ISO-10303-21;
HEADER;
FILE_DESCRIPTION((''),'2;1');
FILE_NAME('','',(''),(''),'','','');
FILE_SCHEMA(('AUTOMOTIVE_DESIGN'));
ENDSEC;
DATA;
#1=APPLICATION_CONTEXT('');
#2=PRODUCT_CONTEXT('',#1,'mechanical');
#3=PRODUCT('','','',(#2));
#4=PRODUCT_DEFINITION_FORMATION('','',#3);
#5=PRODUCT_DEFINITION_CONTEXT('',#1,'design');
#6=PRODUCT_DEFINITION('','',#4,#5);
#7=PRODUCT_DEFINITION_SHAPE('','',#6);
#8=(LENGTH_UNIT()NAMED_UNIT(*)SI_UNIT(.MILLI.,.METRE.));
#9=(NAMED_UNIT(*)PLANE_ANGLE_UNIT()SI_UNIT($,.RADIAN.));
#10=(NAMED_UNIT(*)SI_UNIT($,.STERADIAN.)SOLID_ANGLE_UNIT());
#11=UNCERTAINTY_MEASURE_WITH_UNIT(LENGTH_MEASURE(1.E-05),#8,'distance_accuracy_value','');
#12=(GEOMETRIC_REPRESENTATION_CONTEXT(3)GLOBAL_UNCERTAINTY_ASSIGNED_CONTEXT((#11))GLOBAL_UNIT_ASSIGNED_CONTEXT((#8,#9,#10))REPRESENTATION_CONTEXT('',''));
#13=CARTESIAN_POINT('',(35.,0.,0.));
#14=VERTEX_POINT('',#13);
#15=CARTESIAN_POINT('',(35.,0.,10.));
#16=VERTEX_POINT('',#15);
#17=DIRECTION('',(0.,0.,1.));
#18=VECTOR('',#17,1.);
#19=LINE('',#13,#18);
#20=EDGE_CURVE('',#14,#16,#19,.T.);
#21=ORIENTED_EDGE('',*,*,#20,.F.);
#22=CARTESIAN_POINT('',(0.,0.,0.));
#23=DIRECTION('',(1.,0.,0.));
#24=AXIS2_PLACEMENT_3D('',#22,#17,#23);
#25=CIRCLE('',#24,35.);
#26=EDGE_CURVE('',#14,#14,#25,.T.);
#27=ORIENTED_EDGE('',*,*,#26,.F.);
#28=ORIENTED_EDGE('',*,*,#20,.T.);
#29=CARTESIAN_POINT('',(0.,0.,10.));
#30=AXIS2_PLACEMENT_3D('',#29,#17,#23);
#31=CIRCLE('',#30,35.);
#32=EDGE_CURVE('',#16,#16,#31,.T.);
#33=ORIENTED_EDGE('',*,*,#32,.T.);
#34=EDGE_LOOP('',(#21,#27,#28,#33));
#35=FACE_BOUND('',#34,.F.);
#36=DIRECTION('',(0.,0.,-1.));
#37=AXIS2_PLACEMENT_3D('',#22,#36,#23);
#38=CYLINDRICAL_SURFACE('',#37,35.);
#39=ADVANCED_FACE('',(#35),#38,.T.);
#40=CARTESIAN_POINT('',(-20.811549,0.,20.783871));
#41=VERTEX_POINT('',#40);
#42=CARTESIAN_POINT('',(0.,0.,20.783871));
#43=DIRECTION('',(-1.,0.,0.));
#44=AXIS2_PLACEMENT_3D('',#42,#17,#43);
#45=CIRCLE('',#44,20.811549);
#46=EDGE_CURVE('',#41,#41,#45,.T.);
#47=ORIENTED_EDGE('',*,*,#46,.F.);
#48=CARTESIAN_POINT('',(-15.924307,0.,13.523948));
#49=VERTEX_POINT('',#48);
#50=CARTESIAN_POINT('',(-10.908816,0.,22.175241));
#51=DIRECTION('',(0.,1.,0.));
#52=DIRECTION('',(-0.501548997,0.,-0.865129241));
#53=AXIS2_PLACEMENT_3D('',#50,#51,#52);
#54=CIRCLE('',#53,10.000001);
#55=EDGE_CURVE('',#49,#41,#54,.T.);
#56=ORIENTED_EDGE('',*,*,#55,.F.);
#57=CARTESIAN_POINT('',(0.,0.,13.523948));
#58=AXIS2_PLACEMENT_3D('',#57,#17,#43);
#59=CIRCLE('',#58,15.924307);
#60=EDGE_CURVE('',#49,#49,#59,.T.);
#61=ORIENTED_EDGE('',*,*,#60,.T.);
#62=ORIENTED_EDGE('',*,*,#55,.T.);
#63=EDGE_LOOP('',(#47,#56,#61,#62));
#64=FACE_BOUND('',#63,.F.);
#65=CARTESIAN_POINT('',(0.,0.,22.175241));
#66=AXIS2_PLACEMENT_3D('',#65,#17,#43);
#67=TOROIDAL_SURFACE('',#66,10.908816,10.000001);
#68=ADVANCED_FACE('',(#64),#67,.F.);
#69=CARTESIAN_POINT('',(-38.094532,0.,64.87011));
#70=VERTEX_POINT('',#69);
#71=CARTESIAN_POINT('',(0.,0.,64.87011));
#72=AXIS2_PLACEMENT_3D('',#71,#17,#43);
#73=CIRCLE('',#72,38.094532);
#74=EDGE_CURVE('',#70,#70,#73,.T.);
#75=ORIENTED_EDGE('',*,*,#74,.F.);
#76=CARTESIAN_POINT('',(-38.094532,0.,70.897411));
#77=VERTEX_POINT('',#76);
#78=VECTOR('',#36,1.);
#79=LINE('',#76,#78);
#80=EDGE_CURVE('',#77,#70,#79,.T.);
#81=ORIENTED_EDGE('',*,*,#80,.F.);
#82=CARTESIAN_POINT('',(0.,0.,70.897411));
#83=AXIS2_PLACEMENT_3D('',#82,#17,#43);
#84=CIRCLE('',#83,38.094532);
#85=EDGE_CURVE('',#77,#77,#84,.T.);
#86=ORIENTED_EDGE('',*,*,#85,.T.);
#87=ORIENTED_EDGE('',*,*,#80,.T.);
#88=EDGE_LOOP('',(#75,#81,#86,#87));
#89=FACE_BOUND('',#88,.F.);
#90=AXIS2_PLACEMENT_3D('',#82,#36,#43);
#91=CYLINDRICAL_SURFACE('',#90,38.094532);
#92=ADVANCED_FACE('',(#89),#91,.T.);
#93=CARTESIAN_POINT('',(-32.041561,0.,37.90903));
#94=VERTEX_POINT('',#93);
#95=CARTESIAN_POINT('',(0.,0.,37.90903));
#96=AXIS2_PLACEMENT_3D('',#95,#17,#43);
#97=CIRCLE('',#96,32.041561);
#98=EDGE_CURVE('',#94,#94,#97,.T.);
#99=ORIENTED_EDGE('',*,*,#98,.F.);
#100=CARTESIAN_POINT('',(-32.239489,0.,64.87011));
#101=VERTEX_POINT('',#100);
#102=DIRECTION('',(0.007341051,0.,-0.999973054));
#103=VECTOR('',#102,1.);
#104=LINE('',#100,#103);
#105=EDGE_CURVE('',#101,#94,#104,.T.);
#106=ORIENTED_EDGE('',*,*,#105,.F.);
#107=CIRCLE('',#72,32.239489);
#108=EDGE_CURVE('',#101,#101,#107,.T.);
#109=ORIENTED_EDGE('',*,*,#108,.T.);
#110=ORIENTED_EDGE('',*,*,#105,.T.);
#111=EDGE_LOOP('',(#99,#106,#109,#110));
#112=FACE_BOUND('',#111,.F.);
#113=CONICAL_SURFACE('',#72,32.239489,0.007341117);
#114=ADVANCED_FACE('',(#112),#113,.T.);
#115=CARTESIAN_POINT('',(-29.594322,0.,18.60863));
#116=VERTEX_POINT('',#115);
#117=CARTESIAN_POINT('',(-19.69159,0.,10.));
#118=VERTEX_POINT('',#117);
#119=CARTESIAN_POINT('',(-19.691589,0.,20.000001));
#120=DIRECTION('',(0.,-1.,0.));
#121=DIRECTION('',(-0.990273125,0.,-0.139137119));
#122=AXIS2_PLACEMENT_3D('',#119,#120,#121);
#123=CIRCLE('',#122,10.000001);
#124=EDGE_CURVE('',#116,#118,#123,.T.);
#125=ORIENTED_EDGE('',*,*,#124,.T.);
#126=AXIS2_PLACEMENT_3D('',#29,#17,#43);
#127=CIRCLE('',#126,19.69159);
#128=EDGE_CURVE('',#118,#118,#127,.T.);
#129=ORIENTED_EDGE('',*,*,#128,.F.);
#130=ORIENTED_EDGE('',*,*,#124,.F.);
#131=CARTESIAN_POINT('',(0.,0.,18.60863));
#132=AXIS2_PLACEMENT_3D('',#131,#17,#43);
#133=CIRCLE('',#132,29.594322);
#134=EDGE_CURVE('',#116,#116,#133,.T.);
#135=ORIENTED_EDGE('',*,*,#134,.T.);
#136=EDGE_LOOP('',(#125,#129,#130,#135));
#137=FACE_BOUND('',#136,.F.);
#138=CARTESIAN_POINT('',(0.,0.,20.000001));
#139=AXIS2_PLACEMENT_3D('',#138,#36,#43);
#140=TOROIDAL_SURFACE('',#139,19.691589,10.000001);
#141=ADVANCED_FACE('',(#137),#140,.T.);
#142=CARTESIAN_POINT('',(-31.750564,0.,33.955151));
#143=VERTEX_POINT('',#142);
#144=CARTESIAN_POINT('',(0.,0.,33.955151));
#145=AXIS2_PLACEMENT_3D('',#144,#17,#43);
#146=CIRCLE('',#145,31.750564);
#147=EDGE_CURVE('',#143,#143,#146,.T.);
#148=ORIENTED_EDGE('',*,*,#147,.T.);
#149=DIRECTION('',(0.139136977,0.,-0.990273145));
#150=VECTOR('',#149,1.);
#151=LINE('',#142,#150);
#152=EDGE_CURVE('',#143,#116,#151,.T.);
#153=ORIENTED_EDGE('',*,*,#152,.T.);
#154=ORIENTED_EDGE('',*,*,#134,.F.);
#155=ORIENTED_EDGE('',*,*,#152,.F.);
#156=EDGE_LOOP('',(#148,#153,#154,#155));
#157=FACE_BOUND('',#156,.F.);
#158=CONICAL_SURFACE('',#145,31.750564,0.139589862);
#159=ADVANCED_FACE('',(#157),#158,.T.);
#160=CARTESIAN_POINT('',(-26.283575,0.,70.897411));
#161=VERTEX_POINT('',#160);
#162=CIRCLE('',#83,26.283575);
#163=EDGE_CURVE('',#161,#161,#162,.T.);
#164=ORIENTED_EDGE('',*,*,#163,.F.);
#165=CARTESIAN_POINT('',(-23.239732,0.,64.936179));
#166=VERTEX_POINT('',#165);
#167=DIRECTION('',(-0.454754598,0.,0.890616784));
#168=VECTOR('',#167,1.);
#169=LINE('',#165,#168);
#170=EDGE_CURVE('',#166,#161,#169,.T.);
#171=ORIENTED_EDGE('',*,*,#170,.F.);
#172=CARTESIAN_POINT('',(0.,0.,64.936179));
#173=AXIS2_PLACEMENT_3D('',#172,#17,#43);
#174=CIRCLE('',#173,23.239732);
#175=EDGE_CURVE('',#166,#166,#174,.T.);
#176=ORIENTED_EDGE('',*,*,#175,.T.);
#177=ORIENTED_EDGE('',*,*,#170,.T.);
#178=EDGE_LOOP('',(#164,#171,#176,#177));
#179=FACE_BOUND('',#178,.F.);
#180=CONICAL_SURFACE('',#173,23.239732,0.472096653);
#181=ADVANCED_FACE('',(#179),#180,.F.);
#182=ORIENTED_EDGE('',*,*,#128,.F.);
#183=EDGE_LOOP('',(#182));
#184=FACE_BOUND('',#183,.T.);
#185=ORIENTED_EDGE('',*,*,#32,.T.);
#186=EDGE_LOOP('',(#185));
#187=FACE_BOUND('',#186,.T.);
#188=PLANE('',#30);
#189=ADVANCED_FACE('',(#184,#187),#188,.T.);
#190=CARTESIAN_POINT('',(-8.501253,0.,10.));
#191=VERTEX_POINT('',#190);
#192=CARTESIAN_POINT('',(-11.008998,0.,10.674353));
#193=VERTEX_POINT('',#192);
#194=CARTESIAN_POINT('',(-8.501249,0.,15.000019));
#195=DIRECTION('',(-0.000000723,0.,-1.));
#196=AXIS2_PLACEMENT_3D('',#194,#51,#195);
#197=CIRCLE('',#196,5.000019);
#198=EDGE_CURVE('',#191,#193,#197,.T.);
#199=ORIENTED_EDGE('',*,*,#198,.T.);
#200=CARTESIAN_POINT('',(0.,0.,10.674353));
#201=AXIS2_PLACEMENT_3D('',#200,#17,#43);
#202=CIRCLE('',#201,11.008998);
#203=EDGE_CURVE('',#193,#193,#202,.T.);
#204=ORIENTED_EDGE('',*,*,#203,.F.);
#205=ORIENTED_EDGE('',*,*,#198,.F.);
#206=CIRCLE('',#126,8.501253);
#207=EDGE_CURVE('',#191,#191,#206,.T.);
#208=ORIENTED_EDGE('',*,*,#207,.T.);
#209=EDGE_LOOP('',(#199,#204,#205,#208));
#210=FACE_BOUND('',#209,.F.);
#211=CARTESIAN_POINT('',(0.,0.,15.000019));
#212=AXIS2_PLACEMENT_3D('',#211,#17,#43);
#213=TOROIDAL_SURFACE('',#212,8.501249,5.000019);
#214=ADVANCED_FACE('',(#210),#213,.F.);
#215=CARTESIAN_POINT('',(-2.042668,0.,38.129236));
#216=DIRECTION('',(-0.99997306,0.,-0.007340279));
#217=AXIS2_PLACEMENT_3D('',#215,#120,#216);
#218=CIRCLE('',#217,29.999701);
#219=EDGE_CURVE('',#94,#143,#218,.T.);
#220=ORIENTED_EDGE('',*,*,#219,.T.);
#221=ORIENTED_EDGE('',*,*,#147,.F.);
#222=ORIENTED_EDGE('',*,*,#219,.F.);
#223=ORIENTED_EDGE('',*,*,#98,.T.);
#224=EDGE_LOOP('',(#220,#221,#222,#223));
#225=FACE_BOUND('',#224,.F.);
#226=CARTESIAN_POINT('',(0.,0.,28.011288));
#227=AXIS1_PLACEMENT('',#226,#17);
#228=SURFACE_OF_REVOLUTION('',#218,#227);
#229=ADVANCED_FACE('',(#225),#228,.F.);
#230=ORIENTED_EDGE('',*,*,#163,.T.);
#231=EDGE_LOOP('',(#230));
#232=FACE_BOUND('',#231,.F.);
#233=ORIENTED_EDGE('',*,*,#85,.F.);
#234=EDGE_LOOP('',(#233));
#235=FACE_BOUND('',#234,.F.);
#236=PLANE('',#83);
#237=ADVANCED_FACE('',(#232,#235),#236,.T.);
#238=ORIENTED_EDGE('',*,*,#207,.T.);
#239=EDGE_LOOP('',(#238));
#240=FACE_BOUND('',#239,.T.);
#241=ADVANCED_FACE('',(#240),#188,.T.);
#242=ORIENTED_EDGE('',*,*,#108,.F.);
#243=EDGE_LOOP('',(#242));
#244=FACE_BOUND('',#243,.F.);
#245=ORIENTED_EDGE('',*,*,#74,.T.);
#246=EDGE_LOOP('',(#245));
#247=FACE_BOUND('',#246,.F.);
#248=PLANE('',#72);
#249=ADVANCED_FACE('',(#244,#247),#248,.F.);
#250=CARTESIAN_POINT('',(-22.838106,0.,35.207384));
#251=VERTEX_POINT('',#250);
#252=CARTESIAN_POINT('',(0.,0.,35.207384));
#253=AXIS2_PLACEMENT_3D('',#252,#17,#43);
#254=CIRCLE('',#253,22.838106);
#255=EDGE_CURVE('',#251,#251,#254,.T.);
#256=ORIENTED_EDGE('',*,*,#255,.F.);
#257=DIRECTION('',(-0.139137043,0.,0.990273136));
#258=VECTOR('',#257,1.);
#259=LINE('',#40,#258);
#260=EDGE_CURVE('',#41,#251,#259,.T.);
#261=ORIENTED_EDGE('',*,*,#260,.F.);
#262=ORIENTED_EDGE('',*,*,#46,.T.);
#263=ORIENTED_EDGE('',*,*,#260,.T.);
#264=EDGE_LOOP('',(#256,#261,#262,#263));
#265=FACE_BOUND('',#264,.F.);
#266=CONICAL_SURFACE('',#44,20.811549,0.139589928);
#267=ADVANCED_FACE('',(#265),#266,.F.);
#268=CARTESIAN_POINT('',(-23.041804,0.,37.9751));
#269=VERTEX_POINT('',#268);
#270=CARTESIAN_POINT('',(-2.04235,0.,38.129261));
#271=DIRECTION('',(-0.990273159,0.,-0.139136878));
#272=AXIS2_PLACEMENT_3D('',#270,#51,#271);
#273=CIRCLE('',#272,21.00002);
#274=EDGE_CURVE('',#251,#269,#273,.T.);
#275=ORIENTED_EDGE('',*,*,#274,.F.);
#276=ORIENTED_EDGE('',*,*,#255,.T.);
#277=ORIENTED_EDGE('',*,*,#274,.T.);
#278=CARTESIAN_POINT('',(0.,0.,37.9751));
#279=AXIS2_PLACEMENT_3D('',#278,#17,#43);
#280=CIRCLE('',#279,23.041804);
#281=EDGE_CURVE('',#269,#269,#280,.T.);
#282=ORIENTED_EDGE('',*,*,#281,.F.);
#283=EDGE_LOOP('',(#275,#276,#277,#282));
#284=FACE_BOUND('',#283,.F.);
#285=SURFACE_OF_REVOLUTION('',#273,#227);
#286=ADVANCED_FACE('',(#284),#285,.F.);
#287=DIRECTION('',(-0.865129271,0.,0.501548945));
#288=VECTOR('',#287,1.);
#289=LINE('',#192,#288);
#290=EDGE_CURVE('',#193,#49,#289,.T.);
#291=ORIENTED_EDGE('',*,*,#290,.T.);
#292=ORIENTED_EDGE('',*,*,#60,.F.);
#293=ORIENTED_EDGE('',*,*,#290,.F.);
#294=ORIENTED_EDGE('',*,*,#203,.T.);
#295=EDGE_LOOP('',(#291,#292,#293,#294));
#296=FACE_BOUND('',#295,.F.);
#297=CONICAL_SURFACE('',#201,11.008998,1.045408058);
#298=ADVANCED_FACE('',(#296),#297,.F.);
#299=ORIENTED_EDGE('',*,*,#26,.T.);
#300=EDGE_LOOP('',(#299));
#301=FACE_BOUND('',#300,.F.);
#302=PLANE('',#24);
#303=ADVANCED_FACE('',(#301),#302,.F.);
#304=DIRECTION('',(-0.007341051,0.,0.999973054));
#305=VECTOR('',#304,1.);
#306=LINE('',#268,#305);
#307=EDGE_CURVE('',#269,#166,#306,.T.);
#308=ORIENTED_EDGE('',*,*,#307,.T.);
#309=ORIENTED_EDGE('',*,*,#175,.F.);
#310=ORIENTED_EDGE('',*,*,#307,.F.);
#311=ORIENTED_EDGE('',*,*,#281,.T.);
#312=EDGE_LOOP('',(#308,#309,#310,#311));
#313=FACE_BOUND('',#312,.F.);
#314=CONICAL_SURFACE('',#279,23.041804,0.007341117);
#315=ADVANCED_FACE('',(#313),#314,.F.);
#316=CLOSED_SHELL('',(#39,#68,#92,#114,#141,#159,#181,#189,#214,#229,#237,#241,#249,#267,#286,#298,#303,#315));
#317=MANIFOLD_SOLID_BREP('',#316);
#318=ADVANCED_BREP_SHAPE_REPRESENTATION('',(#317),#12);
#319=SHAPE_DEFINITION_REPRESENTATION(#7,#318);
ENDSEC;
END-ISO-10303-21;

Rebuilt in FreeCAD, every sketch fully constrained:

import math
import FreeCAD as App
import Part
import Sketcher
from FreeCAD import Vector
Q = App.Units.Quantity

doc = App.newDocument("Part")
body = doc.addObject("PartDesign::Body", "Body")

sketch1 = doc.addObject("Sketcher::SketchObject", "Sketch")
body.addObject(sketch1)
sketch1.AttachmentSupport = (doc.XY_Plane, [""])
sketch1.MapMode = "FlatFace"
sketch1.addGeometry(Part.Circle(Vector(0, 0, 0), Vector(0, 0, 1), 35), False)
sketch1.addConstraint([
    Sketcher.Constraint("Coincident", 0, 3, -1, 1),
    Sketcher.Constraint("Diameter", 0, Q("70 mm")),
])
pad1 = doc.addObject("PartDesign::Pad", "Pad")
body.addObject(pad1)
pad1.Profile = sketch1
pad1.Length = 10

sketch2 = doc.addObject("Sketcher::SketchObject", "Sketch001")
body.addObject(sketch2)
sketch2.AttachmentSupport = (doc.XZ_Plane, [""])
sketch2.MapMode = "FlatFace"
sketch2.addGeometry([
    Part.LineSegment(Vector(-26.283575, 70.897411, 0), Vector(-38.094532, 70.897411, 0)),
    Part.LineSegment(Vector(-38.094532, 70.897411, 0), Vector(-38.094532, 64.87011, 0)),
    Part.LineSegment(Vector(-38.094532, 64.87011, 0), Vector(-32.239489, 64.87011, 0)),
    Part.LineSegment(Vector(-32.239489, 64.87011, 0), Vector(-32.041561, 37.90903, 0)),
    Part.ArcOfCircle(Part.Circle(Vector(-2.042668, 38.129236, 0), Vector(0, 0, 1), 29.999701), math.radians(-179.579429), math.radians(-172.002056)),
    Part.LineSegment(Vector(-31.750564, 33.955151, 0), Vector(-29.594322, 18.60863, 0)),
    Part.ArcOfCircle(Part.Circle(Vector(-19.691589, 20.000001, 0), Vector(0, 0, 1), 10.000001), math.radians(-172.002082), math.radians(-90.000004)),
    Part.LineSegment(Vector(-19.69159, 10, 0), Vector(-8.501253, 10, 0)),
    Part.ArcOfCircle(Part.Circle(Vector(-8.501249, 15.000019, 0), Vector(0, 0, 1), 5.000019), math.radians(-120.102458), math.radians(-90.000041)),
    Part.LineSegment(Vector(-11.008998, 10.674353, 0), Vector(-15.924307, 13.523948, 0)),
    Part.ArcOfCircle(Part.Circle(Vector(-10.908816, 22.175241, 0), Vector(0, 0, 1), 10.000001), math.radians(-172.002087), math.radians(-120.102534)),
    Part.LineSegment(Vector(-20.811549, 20.783871, 0), Vector(-22.838106, 35.207384, 0)),
    Part.ArcOfCircle(Part.Circle(Vector(-2.04235, 38.129261, 0), Vector(0, 0, 1), 21.00002), math.radians(-179.579388), math.radians(-172.002096)),
    Part.LineSegment(Vector(-23.041804, 37.9751, 0), Vector(-23.239732, 64.936179, 0)),
    Part.LineSegment(Vector(-23.239732, 64.936179, 0), Vector(-26.283575, 70.897411, 0)),
], False)
sketch2.addConstraint([
    Sketcher.Constraint("Coincident", 0, 2, 1, 1),
    Sketcher.Constraint("Coincident", 1, 2, 2, 1),
    Sketcher.Constraint("Coincident", 2, 2, 3, 1),
    Sketcher.Constraint("Coincident", 3, 2, 4, 1),
    Sketcher.Constraint("Coincident", 4, 2, 5, 1),
    Sketcher.Constraint("Coincident", 5, 2, 6, 1),
    Sketcher.Constraint("Coincident", 6, 2, 7, 1),
    Sketcher.Constraint("Coincident", 7, 2, 8, 2),
    Sketcher.Constraint("Coincident", 8, 1, 9, 1),
    Sketcher.Constraint("Coincident", 9, 2, 10, 2),
    Sketcher.Constraint("Coincident", 10, 1, 11, 1),
    Sketcher.Constraint("Coincident", 11, 2, 12, 2),
    Sketcher.Constraint("Coincident", 12, 1, 13, 1),
    Sketcher.Constraint("Coincident", 13, 2, 14, 1),
    Sketcher.Constraint("Coincident", 14, 2, 0, 1),
    Sketcher.Constraint("Horizontal", 0),
    Sketcher.Constraint("Vertical", 1),
    Sketcher.Constraint("Horizontal", 2),
    Sketcher.Constraint("Horizontal", 7),
    Sketcher.Constraint("Radius", 6, Q("10.000001 mm")),
    Sketcher.Constraint("Radius", 10, Q("10.000001 mm")),
    Sketcher.Constraint("DistanceY", -1, 1, 6, 3, Q("20.000001 mm")),
    Sketcher.Constraint("Radius", 4, Q("29.999701 mm")),
    Sketcher.Constraint("Radius", 8, Q("5.000019 mm")),
    Sketcher.Constraint("Radius", 12, Q("21.00002 mm")),
    Sketcher.Constraint("DistanceY", 1, 2, 1, 1, Q("6.027301 mm")),
    Sketcher.Constraint("DistanceY", -1, 1, 12, 1, Q("37.9751 mm")),
    Sketcher.Constraint("DistanceX", 8, 3, 12, 3, Q("6.458899 mm")),
    Sketcher.Constraint("DistanceX", 2, 2, 6, 3, Q("12.5479 mm")),
    Sketcher.Constraint("DistanceY", 5, 2, 3, 2, Q("19.3004 mm")),
    Sketcher.Constraint("DistanceX", 1, 2, 13, 2, Q("14.8548 mm")),
    Sketcher.Constraint("Distance", 5, Q("15.497261 mm")),
    Sketcher.Constraint("Distance", 9, Q("5.681589 mm")),
    Sketcher.Constraint("DistanceX", 0, 2, 0, 1, Q("11.810957 mm")),
    Sketcher.Constraint("DistanceX", 2, 1, 2, 2, Q("5.855043 mm")),
    Sketcher.Constraint("DistanceX", 7, 1, 7, 2, Q("11.190337 mm")),
    Sketcher.Constraint("DistanceX", 4, 3, -1, 1, Q("2.042668 mm")),
    Sketcher.Constraint("DistanceX", 6, 3, -1, 1, Q("19.691589 mm")),
    Sketcher.Constraint("DistanceX", 8, 3, -1, 1, Q("8.501249 mm")),
    Sketcher.Constraint("DistanceY", -1, 1, 10, 3, Q("22.175241 mm")),
    Sketcher.Constraint("DistanceY", -1, 1, 12, 3, Q("38.129261 mm")),
    Sketcher.Constraint("DistanceY", -1, 1, 0, 2, Q("70.897411 mm")),
    Sketcher.Constraint("DistanceX", 3, 2, -1, 1, Q("32.041561 mm")),
    Sketcher.Constraint("DistanceY", -1, 1, 3, 2, Q("37.90903 mm")),
    Sketcher.Constraint("DistanceX", 6, 2, -1, 1, Q("19.69159 mm")),
    Sketcher.Constraint("DistanceY", -1, 1, 9, 2, Q("13.523948 mm")),
    Sketcher.Constraint("DistanceX", 10, 1, -1, 1, Q("20.811549 mm")),
    Sketcher.Constraint("DistanceY", -1, 1, 10, 1, Q("20.783871 mm")),
    Sketcher.Constraint("DistanceY", -1, 1, 13, 2, Q("64.936179 mm")),
    Sketcher.Constraint("DistanceX", 4, 2, 11, 2, Q("8.912458 mm")),
])
revolution = doc.addObject("PartDesign::Revolution", "Revolution")
body.addObject(revolution)
revolution.Profile = sketch2
revolution.ReferenceAxis = (sketch2, ["V_Axis"])
revolution.Angle = 360

doc.recompute()
